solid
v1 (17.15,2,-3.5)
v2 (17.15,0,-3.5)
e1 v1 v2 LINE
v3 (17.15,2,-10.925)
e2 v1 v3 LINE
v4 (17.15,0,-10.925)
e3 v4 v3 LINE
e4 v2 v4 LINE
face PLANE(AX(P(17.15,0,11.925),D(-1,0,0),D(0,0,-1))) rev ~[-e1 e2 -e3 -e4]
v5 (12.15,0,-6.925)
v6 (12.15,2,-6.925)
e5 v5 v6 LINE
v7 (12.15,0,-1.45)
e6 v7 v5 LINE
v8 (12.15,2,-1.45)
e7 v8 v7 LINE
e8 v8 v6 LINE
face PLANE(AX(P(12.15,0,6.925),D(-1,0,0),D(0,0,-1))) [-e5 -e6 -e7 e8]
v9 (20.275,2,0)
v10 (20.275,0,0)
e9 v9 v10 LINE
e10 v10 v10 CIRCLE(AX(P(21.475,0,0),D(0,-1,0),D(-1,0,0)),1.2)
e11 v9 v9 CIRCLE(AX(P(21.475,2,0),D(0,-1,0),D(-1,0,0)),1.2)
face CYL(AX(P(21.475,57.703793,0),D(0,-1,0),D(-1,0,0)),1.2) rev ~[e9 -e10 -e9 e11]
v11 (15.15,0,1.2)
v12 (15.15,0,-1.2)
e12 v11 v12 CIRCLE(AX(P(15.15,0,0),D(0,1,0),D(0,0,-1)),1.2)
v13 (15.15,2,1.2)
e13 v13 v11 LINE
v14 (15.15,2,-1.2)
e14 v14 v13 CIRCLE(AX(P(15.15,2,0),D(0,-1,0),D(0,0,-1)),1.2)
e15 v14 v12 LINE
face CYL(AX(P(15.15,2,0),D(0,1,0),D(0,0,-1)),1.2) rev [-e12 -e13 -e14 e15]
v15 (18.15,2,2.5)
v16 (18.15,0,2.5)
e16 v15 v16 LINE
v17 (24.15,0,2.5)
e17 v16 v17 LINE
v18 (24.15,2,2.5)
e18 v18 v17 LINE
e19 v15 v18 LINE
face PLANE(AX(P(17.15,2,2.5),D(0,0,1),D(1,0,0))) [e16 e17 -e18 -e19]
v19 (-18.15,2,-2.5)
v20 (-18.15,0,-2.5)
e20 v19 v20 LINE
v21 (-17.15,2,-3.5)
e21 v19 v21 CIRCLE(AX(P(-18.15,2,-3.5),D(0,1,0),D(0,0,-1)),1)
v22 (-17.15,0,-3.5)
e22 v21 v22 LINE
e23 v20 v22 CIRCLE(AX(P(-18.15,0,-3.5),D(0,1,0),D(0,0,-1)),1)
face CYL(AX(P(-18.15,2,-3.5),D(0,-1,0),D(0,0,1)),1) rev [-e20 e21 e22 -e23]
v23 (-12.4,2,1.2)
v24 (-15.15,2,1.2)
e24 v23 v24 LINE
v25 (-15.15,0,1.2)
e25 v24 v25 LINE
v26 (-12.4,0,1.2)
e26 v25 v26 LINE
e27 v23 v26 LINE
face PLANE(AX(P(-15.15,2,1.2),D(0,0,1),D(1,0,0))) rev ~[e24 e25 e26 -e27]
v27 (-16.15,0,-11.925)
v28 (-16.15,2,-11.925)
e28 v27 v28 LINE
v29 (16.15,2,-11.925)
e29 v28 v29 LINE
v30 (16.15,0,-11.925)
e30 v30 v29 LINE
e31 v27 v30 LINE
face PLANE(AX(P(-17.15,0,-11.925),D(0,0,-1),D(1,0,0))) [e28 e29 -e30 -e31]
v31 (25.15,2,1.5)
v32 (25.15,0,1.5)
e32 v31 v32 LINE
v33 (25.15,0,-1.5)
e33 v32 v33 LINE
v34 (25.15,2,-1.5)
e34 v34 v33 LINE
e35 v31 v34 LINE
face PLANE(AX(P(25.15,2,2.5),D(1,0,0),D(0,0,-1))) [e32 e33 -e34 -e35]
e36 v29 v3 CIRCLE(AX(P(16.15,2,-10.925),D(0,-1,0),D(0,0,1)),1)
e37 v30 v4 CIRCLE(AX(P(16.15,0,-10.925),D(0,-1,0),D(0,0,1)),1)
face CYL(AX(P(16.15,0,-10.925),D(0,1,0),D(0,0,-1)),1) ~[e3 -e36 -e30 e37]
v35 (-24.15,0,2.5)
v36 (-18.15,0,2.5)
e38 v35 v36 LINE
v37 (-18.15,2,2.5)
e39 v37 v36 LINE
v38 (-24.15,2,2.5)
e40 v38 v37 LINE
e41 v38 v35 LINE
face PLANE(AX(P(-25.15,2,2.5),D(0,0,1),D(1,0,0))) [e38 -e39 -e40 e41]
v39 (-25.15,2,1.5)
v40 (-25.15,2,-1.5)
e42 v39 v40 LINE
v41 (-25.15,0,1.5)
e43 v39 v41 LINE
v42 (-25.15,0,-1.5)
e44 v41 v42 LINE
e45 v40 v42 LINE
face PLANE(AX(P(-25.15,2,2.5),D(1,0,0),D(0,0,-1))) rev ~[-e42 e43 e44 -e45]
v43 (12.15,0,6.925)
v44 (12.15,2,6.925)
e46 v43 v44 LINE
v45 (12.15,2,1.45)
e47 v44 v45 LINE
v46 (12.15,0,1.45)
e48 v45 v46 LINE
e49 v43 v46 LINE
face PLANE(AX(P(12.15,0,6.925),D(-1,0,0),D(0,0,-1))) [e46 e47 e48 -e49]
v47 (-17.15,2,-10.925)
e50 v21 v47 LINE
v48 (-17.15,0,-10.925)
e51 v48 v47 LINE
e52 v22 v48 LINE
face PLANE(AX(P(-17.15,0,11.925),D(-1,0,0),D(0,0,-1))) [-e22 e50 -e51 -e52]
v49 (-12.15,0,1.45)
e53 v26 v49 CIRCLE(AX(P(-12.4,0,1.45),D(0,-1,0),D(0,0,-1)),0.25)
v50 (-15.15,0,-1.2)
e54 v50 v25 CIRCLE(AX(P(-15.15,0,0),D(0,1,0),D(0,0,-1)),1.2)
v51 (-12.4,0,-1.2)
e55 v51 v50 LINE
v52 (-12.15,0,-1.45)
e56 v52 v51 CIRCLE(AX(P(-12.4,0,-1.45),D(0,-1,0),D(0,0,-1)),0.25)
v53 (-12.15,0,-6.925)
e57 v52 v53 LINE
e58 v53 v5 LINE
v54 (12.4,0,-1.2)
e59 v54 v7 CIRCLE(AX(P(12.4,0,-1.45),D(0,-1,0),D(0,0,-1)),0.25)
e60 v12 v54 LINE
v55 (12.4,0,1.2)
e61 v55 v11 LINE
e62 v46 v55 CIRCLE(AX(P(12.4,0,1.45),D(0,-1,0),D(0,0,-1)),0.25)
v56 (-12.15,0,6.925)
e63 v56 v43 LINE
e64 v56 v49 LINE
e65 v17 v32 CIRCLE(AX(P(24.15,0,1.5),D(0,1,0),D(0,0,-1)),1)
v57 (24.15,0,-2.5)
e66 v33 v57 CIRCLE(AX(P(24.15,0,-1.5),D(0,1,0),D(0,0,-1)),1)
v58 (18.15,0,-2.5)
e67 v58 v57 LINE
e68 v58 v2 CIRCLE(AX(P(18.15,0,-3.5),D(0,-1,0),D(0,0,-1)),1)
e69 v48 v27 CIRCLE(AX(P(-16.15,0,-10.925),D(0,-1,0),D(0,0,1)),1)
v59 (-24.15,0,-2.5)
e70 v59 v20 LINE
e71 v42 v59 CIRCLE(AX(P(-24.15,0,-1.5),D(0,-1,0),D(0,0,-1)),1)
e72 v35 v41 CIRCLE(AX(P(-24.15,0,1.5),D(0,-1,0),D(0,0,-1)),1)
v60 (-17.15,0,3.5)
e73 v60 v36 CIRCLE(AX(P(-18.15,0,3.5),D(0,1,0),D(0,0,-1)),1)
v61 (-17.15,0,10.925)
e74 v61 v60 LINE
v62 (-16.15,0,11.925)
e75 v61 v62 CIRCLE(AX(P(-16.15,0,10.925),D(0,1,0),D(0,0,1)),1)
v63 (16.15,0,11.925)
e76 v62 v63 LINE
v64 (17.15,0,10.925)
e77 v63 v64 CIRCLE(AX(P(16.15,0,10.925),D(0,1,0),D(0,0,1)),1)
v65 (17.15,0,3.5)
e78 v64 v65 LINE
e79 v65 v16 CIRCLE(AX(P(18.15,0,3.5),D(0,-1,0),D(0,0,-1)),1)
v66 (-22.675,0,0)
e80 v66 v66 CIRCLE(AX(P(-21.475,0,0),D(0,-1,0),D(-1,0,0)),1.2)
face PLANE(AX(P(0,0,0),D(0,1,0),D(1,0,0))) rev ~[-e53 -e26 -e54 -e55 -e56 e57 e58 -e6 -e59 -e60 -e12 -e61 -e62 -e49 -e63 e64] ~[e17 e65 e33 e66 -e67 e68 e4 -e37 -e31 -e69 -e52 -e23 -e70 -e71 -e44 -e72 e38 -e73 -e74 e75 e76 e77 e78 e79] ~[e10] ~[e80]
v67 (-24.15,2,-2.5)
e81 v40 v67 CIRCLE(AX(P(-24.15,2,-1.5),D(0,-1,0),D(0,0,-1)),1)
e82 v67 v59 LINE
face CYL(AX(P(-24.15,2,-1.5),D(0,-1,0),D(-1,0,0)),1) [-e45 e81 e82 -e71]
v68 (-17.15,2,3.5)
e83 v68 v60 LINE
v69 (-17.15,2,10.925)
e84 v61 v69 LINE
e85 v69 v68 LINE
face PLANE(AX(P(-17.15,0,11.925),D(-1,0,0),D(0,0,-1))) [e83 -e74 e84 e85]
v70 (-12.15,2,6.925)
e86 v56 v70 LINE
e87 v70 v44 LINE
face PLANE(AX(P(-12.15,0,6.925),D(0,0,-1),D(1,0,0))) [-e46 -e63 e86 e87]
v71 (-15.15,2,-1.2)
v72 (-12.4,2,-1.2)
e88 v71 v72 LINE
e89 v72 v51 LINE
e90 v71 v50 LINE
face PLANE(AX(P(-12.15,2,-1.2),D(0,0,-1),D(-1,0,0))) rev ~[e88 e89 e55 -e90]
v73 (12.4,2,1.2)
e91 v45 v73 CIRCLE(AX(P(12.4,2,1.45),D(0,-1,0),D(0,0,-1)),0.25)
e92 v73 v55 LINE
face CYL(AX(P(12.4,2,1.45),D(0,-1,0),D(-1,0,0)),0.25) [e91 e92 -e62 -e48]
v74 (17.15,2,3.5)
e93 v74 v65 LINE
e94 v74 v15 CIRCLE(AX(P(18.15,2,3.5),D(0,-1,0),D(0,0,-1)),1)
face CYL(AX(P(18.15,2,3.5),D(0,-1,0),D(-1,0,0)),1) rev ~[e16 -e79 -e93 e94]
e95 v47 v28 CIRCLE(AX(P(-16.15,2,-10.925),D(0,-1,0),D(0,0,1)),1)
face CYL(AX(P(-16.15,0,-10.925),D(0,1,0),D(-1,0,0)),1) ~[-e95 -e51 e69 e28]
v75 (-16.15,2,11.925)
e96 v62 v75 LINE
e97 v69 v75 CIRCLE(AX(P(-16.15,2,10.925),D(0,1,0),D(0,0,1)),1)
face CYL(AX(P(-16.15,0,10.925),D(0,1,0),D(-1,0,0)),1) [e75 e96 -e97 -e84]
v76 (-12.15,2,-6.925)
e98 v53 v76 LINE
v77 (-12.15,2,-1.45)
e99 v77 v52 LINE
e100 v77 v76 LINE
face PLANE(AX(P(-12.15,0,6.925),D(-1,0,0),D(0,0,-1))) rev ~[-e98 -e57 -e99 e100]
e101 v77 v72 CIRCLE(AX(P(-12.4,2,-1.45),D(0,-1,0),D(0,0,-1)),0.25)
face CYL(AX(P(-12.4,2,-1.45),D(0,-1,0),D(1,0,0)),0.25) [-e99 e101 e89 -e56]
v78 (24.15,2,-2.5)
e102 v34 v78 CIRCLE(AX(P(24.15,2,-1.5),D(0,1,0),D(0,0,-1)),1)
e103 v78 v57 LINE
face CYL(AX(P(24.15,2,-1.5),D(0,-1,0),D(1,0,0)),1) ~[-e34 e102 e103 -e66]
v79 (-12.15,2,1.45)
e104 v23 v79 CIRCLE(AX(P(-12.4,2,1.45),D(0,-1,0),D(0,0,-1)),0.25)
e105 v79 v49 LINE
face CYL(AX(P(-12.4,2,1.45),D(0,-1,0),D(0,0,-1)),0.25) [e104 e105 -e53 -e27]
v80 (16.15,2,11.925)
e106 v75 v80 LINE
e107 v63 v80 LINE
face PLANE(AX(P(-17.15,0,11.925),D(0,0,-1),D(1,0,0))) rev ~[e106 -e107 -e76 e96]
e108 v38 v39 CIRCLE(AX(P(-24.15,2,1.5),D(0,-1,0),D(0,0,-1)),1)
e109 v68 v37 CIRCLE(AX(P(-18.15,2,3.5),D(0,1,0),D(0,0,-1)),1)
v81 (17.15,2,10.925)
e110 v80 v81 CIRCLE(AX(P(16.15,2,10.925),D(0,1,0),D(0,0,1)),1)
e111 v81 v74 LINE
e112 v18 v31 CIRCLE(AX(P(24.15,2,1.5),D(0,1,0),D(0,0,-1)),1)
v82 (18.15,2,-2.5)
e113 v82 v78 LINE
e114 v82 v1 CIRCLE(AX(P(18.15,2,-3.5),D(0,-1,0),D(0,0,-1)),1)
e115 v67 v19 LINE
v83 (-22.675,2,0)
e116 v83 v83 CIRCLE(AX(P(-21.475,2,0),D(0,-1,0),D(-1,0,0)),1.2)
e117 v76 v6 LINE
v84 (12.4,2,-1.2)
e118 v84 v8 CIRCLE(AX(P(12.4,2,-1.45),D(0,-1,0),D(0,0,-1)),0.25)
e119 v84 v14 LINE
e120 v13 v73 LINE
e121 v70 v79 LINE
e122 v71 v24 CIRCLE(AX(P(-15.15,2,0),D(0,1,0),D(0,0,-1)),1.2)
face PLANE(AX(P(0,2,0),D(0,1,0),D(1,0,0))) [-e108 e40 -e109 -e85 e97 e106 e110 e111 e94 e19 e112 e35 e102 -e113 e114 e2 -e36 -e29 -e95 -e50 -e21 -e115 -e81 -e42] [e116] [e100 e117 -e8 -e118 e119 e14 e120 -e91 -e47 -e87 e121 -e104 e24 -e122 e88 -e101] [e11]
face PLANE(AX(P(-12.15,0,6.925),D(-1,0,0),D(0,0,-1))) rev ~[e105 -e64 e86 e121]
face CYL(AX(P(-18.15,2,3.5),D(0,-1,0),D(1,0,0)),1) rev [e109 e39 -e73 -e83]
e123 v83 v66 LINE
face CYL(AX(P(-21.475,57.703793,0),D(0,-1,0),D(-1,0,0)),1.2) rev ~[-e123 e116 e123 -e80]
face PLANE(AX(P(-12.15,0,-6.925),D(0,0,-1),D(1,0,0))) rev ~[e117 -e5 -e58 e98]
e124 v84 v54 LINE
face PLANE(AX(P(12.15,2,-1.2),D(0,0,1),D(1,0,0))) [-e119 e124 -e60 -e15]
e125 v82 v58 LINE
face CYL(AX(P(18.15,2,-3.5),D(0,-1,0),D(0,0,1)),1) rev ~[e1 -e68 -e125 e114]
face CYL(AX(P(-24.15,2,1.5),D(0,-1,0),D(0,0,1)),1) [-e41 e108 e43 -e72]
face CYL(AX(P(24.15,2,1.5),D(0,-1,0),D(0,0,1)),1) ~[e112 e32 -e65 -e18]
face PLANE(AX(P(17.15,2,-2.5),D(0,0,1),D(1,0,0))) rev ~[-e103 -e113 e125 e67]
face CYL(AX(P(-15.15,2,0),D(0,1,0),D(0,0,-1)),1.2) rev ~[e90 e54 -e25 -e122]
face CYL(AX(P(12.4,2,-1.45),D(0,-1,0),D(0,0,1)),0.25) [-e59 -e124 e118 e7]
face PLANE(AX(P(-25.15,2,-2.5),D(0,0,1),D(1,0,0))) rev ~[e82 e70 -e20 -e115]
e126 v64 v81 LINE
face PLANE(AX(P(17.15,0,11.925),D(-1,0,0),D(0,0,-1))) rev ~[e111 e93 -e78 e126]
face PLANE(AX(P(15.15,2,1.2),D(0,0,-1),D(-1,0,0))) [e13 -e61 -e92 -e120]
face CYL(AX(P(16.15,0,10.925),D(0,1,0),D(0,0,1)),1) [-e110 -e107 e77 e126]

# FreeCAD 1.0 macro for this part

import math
import FreeCAD as App
import Part
import Sketcher

V = App.Vector


def edges_at(feature, points):
    """Names of the edges that pass closest to the given points."""
    edges = feature.Shape.Edges
    near = lambda p: min(range(len(edges)), key=lambda i: edges[i].distToShape(Part.Vertex(*p))[0])
    return sorted({f"Edge{near(p) + 1}" for p in points})


def add_polygon(sketch, points):
    """Adds a closed chain of lines whose ends are joined by coincident constraints."""
    first, n = sketch.GeometryCount, len(points)
    for a, b in zip(points, points[1:] + points[:1]):
        sketch.addGeometry(Part.LineSegment(App.Vector(*a, 0), App.Vector(*b, 0)), False)
    for i in range(n):
        sketch.addConstraint(Sketcher.Constraint("Coincident", first + i, 2, first + (i + 1) % n, 1))

doc = App.newDocument("Part")
body = doc.addObject("PartDesign::Body", "Body")

sketch1 = body.newObject("Sketcher::SketchObject", "Sketch")
sketch1.AttachmentSupport = (doc.getObject("XZ_Plane"), [""])
sketch1.MapMode = "FlatFace"
add_polygon(sketch1, [(-17, -12), (-17, 12), (17, 12), (17, -12)])
add_polygon(sketch1, [(12, 7), (-12, 7), (-12, -7), (12, -7)])
sketch1.addConstraint([
    Sketcher.Constraint("Vertical", 0),
    Sketcher.Constraint("Horizontal", 1),
    Sketcher.Constraint("Vertical", 2),
    Sketcher.Constraint("Horizontal", 3),
    Sketcher.Constraint("Horizontal", 4),
    Sketcher.Constraint("Vertical", 5),
    Sketcher.Constraint("Horizontal", 6),
    Sketcher.Constraint("Vertical", 7),
    Sketcher.Constraint("Symmetric", 0, 2, 2, 2, -1, 1),
    Sketcher.Constraint("Symmetric", 4, 2, 6, 2, -1, 1),
    Sketcher.Constraint("DistanceX", 1, 1, 1, 2, 34.3),
    Sketcher.Constraint("DistanceX", 4, 2, 4, 1, 24.3),
    Sketcher.Constraint("DistanceY", 4, 2, 0, 2, 5.0),
    Sketcher.Constraint("DistanceY", 0, 1, 0, 2, 23.85),
])
pad1 = body.newObject("PartDesign::Pad", "Pad")
pad1.Profile = sketch1
pad1.Length = 2
pad1.Reversed = True

sketch2 = body.newObject("Sketcher::SketchObject", "Sketch001")
sketch2.AttachmentSupport = (doc.getObject("XZ_Plane"), [""])
sketch2.MapMode = "FlatFace"
sketch2.AttachmentOffset = App.Placement(V(0, 0, -2), App.Rotation())
add_polygon(sketch2, [(-25, -2), (-25, 2), (-17, 2), (-17, -2)])
add_polygon(sketch2, [(17, -2), (17, 2), (25, 2), (25, -2)])
sketch2.addConstraint([
    Sketcher.Constraint("Vertical", 0),
    Sketcher.Constraint("Horizontal", 1),
    Sketcher.Constraint("Vertical", 2),
    Sketcher.Constraint("Horizontal", 3),
    Sketcher.Constraint("Vertical", 4),
    Sketcher.Constraint("Horizontal", 5),
    Sketcher.Constraint("Vertical", 6),
    Sketcher.Constraint("Horizontal", 7),
    Sketcher.Constraint("Symmetric", 2, 2, 4, 2, -1, 1),
    Sketcher.Constraint("Symmetric", 0, 2, 6, 2, -1, 1),
    Sketcher.Constraint("Horizontal", 1, 2, 4, 2),
    Sketcher.Constraint("DistanceX", 1, 1, 1, 2, 8.0),
    Sketcher.Constraint("DistanceY", 0, 1, 0, 2, 5.0),
    Sketcher.Constraint("DistanceX", 1, 2, 4, 2, 34.3),
])
pad2 = body.newObject("PartDesign::Pad", "Pad001")
pad2.Profile = sketch2
pad2.Length = 2

sketch3 = body.newObject("Sketcher::SketchObject", "Sketch002")
sketch3.AttachmentSupport = (doc.getObject("XZ_Plane"), [""])
sketch3.MapMode = "FlatFace"
sketch3.AttachmentOffset = App.Placement(V(0, 0, -2), App.Rotation())
sketch3.addGeometry([
    Part.Circle(V(-14, 0, 0), V(0, 0, 1), 1.2),
    Part.Circle(V(14, 0, 0), V(0, 0, 1), 1.2),
    Part.Circle(V(-21.5, 0, 0), V(0, 0, 1), 1.2),
    Part.Circle(V(21.5, 0, 0), V(0, 0, 1), 1.2),
], False)
sketch3.addConstraint([
    Sketcher.Constraint("Equal", 0, 1),
    Sketcher.Constraint("Equal", 1, 2),
    Sketcher.Constraint("Equal", 2, 3),
    Sketcher.Constraint("Symmetric", 0, 3, 1, 3, -1, 1),
    Sketcher.Constraint("Symmetric", 2, 3, 3, 3, -1, 1),
    Sketcher.Constraint("PointOnObject", 0, 3, -1),
    Sketcher.Constraint("PointOnObject", 2, 3, -1),
    Sketcher.Constraint("Diameter", 0, 2.4),
    Sketcher.Constraint("DistanceX", 2, 3, 0, 3, 7.5),
    Sketcher.Constraint("DistanceX", 0, 3, 1, 3, 27.95),
])
doc.recompute()
hole = body.newObject("PartDesign::Hole", "Hole")
hole.Profile = sketch3
hole.ThreadType = "None"
hole.Diameter = 2.4
hole.DepthType = "ThroughAll"
hole.Reversed = True
doc.recompute()

fillet = body.newObject("PartDesign::Fillet", "Fillet")
fillet.Base = (hole, edges_at(hole, [
    (-17.15, 1, -2.5),
    (-17.15, 1, 2.5),
    (-25.15, 1, 2.5),
    (-25.15, 1, -2.5),
    (17.15, 1, 2.5),
    (17.15, 1, -2.5),
    (25.15, 1, -2.5),
    (25.15, 1, 2.5),
    (-17.15, 1, -11.925),
    (17.15, 1, -11.925),
    (17.15, 1, 11.925),
    (-17.15, 1, 11.925),
]))
fillet.Radius = 1

sketch4 = body.newObject("Sketcher::SketchObject", "Sketch003")
sketch4.AttachmentSupport = (doc.getObject("XZ_Plane"), [""])
sketch4.MapMode = "FlatFace"
sketch4.AttachmentOffset = App.Placement(V(0, 0, -2), App.Rotation())
sketch4.addGeometry([
    Part.LineSegment(V(-12.2, -1.2, 0), V(-15.2, -1.2, 0)),
    Part.ArcOfCircle(Part.Circle(V(-15.2, 0, 0), V(0, 0, 1), 1.2), math.radians(90), math.radians(270)),
    Part.LineSegment(V(-15.2, 1.2, 0), V(-12.2, 1.2, 0)),
    Part.LineSegment(V(-12.2, 1.2, 0), V(-12.2, -1.2, 0)),
    Part.LineSegment(V(15.2, -1.2, 0), V(12.2, -1.2, 0)),
    Part.LineSegment(V(12.2, -1.2, 0), V(12.2, 1.2, 0)),
    Part.LineSegment(V(12.2, 1.2, 0), V(15.2, 1.2, 0)),
    Part.ArcOfCircle(Part.Circle(V(15.2, 0, 0), V(0, 0, 1), 1.2), math.radians(-90), math.radians(90)),
], False)
sketch4.addConstraint([
    Sketcher.Constraint("Tangent", 0, 2, 1, 2),
    Sketcher.Constraint("Tangent", 1, 1, 2, 1),
    Sketcher.Constraint("Coincident", 2, 2, 3, 1),
    Sketcher.Constraint("Coincident", 3, 2, 0, 1),
    Sketcher.Constraint("Coincident", 4, 2, 5, 1),
    Sketcher.Constraint("Coincident", 5, 2, 6, 1),
    Sketcher.Constraint("Tangent", 6, 2, 7, 2),
    Sketcher.Constraint("Tangent", 7, 1, 4, 1),
    Sketcher.Constraint("Horizontal", 0),
    Sketcher.Constraint("Horizontal", 2),
    Sketcher.Constraint("Vertical", 3),
    Sketcher.Constraint("Horizontal", 4),
    Sketcher.Constraint("Vertical", 5),
    Sketcher.Constraint("Horizontal", 6),
    Sketcher.Constraint("Equal", 1, 7),
    Sketcher.Constraint("Symmetric", 1, 3, 7, 3, -1, 1),
    Sketcher.Constraint("Symmetric", 3, 2, 4, 2, -2),
    Sketcher.Constraint("Radius", 1, 1.2),
    Sketcher.Constraint("DistanceX", 0, 2, 0, 1, 3.0),
    Sketcher.Constraint("DistanceX", 1, 3, 7, 3, 30.3),
])
pocket1 = body.newObject("PartDesign::Pocket", "Pocket")
pocket1.Profile = sketch4
pocket1.Type = "ThroughAll"
pocket1.Reversed = True
doc.recompute()

fillet2 = body.newObject("PartDesign::Fillet", "Fillet001")
fillet2.Base = (pocket1, edges_at(pocket1, [
    (-12.15, 1, 1.2),
    (-12.15, 1, -1.2),
    (12.15, 1, -1.2),
    (12.15, 1, 1.2),
]))
fillet2.Radius = 0.25

doc.recompute()
